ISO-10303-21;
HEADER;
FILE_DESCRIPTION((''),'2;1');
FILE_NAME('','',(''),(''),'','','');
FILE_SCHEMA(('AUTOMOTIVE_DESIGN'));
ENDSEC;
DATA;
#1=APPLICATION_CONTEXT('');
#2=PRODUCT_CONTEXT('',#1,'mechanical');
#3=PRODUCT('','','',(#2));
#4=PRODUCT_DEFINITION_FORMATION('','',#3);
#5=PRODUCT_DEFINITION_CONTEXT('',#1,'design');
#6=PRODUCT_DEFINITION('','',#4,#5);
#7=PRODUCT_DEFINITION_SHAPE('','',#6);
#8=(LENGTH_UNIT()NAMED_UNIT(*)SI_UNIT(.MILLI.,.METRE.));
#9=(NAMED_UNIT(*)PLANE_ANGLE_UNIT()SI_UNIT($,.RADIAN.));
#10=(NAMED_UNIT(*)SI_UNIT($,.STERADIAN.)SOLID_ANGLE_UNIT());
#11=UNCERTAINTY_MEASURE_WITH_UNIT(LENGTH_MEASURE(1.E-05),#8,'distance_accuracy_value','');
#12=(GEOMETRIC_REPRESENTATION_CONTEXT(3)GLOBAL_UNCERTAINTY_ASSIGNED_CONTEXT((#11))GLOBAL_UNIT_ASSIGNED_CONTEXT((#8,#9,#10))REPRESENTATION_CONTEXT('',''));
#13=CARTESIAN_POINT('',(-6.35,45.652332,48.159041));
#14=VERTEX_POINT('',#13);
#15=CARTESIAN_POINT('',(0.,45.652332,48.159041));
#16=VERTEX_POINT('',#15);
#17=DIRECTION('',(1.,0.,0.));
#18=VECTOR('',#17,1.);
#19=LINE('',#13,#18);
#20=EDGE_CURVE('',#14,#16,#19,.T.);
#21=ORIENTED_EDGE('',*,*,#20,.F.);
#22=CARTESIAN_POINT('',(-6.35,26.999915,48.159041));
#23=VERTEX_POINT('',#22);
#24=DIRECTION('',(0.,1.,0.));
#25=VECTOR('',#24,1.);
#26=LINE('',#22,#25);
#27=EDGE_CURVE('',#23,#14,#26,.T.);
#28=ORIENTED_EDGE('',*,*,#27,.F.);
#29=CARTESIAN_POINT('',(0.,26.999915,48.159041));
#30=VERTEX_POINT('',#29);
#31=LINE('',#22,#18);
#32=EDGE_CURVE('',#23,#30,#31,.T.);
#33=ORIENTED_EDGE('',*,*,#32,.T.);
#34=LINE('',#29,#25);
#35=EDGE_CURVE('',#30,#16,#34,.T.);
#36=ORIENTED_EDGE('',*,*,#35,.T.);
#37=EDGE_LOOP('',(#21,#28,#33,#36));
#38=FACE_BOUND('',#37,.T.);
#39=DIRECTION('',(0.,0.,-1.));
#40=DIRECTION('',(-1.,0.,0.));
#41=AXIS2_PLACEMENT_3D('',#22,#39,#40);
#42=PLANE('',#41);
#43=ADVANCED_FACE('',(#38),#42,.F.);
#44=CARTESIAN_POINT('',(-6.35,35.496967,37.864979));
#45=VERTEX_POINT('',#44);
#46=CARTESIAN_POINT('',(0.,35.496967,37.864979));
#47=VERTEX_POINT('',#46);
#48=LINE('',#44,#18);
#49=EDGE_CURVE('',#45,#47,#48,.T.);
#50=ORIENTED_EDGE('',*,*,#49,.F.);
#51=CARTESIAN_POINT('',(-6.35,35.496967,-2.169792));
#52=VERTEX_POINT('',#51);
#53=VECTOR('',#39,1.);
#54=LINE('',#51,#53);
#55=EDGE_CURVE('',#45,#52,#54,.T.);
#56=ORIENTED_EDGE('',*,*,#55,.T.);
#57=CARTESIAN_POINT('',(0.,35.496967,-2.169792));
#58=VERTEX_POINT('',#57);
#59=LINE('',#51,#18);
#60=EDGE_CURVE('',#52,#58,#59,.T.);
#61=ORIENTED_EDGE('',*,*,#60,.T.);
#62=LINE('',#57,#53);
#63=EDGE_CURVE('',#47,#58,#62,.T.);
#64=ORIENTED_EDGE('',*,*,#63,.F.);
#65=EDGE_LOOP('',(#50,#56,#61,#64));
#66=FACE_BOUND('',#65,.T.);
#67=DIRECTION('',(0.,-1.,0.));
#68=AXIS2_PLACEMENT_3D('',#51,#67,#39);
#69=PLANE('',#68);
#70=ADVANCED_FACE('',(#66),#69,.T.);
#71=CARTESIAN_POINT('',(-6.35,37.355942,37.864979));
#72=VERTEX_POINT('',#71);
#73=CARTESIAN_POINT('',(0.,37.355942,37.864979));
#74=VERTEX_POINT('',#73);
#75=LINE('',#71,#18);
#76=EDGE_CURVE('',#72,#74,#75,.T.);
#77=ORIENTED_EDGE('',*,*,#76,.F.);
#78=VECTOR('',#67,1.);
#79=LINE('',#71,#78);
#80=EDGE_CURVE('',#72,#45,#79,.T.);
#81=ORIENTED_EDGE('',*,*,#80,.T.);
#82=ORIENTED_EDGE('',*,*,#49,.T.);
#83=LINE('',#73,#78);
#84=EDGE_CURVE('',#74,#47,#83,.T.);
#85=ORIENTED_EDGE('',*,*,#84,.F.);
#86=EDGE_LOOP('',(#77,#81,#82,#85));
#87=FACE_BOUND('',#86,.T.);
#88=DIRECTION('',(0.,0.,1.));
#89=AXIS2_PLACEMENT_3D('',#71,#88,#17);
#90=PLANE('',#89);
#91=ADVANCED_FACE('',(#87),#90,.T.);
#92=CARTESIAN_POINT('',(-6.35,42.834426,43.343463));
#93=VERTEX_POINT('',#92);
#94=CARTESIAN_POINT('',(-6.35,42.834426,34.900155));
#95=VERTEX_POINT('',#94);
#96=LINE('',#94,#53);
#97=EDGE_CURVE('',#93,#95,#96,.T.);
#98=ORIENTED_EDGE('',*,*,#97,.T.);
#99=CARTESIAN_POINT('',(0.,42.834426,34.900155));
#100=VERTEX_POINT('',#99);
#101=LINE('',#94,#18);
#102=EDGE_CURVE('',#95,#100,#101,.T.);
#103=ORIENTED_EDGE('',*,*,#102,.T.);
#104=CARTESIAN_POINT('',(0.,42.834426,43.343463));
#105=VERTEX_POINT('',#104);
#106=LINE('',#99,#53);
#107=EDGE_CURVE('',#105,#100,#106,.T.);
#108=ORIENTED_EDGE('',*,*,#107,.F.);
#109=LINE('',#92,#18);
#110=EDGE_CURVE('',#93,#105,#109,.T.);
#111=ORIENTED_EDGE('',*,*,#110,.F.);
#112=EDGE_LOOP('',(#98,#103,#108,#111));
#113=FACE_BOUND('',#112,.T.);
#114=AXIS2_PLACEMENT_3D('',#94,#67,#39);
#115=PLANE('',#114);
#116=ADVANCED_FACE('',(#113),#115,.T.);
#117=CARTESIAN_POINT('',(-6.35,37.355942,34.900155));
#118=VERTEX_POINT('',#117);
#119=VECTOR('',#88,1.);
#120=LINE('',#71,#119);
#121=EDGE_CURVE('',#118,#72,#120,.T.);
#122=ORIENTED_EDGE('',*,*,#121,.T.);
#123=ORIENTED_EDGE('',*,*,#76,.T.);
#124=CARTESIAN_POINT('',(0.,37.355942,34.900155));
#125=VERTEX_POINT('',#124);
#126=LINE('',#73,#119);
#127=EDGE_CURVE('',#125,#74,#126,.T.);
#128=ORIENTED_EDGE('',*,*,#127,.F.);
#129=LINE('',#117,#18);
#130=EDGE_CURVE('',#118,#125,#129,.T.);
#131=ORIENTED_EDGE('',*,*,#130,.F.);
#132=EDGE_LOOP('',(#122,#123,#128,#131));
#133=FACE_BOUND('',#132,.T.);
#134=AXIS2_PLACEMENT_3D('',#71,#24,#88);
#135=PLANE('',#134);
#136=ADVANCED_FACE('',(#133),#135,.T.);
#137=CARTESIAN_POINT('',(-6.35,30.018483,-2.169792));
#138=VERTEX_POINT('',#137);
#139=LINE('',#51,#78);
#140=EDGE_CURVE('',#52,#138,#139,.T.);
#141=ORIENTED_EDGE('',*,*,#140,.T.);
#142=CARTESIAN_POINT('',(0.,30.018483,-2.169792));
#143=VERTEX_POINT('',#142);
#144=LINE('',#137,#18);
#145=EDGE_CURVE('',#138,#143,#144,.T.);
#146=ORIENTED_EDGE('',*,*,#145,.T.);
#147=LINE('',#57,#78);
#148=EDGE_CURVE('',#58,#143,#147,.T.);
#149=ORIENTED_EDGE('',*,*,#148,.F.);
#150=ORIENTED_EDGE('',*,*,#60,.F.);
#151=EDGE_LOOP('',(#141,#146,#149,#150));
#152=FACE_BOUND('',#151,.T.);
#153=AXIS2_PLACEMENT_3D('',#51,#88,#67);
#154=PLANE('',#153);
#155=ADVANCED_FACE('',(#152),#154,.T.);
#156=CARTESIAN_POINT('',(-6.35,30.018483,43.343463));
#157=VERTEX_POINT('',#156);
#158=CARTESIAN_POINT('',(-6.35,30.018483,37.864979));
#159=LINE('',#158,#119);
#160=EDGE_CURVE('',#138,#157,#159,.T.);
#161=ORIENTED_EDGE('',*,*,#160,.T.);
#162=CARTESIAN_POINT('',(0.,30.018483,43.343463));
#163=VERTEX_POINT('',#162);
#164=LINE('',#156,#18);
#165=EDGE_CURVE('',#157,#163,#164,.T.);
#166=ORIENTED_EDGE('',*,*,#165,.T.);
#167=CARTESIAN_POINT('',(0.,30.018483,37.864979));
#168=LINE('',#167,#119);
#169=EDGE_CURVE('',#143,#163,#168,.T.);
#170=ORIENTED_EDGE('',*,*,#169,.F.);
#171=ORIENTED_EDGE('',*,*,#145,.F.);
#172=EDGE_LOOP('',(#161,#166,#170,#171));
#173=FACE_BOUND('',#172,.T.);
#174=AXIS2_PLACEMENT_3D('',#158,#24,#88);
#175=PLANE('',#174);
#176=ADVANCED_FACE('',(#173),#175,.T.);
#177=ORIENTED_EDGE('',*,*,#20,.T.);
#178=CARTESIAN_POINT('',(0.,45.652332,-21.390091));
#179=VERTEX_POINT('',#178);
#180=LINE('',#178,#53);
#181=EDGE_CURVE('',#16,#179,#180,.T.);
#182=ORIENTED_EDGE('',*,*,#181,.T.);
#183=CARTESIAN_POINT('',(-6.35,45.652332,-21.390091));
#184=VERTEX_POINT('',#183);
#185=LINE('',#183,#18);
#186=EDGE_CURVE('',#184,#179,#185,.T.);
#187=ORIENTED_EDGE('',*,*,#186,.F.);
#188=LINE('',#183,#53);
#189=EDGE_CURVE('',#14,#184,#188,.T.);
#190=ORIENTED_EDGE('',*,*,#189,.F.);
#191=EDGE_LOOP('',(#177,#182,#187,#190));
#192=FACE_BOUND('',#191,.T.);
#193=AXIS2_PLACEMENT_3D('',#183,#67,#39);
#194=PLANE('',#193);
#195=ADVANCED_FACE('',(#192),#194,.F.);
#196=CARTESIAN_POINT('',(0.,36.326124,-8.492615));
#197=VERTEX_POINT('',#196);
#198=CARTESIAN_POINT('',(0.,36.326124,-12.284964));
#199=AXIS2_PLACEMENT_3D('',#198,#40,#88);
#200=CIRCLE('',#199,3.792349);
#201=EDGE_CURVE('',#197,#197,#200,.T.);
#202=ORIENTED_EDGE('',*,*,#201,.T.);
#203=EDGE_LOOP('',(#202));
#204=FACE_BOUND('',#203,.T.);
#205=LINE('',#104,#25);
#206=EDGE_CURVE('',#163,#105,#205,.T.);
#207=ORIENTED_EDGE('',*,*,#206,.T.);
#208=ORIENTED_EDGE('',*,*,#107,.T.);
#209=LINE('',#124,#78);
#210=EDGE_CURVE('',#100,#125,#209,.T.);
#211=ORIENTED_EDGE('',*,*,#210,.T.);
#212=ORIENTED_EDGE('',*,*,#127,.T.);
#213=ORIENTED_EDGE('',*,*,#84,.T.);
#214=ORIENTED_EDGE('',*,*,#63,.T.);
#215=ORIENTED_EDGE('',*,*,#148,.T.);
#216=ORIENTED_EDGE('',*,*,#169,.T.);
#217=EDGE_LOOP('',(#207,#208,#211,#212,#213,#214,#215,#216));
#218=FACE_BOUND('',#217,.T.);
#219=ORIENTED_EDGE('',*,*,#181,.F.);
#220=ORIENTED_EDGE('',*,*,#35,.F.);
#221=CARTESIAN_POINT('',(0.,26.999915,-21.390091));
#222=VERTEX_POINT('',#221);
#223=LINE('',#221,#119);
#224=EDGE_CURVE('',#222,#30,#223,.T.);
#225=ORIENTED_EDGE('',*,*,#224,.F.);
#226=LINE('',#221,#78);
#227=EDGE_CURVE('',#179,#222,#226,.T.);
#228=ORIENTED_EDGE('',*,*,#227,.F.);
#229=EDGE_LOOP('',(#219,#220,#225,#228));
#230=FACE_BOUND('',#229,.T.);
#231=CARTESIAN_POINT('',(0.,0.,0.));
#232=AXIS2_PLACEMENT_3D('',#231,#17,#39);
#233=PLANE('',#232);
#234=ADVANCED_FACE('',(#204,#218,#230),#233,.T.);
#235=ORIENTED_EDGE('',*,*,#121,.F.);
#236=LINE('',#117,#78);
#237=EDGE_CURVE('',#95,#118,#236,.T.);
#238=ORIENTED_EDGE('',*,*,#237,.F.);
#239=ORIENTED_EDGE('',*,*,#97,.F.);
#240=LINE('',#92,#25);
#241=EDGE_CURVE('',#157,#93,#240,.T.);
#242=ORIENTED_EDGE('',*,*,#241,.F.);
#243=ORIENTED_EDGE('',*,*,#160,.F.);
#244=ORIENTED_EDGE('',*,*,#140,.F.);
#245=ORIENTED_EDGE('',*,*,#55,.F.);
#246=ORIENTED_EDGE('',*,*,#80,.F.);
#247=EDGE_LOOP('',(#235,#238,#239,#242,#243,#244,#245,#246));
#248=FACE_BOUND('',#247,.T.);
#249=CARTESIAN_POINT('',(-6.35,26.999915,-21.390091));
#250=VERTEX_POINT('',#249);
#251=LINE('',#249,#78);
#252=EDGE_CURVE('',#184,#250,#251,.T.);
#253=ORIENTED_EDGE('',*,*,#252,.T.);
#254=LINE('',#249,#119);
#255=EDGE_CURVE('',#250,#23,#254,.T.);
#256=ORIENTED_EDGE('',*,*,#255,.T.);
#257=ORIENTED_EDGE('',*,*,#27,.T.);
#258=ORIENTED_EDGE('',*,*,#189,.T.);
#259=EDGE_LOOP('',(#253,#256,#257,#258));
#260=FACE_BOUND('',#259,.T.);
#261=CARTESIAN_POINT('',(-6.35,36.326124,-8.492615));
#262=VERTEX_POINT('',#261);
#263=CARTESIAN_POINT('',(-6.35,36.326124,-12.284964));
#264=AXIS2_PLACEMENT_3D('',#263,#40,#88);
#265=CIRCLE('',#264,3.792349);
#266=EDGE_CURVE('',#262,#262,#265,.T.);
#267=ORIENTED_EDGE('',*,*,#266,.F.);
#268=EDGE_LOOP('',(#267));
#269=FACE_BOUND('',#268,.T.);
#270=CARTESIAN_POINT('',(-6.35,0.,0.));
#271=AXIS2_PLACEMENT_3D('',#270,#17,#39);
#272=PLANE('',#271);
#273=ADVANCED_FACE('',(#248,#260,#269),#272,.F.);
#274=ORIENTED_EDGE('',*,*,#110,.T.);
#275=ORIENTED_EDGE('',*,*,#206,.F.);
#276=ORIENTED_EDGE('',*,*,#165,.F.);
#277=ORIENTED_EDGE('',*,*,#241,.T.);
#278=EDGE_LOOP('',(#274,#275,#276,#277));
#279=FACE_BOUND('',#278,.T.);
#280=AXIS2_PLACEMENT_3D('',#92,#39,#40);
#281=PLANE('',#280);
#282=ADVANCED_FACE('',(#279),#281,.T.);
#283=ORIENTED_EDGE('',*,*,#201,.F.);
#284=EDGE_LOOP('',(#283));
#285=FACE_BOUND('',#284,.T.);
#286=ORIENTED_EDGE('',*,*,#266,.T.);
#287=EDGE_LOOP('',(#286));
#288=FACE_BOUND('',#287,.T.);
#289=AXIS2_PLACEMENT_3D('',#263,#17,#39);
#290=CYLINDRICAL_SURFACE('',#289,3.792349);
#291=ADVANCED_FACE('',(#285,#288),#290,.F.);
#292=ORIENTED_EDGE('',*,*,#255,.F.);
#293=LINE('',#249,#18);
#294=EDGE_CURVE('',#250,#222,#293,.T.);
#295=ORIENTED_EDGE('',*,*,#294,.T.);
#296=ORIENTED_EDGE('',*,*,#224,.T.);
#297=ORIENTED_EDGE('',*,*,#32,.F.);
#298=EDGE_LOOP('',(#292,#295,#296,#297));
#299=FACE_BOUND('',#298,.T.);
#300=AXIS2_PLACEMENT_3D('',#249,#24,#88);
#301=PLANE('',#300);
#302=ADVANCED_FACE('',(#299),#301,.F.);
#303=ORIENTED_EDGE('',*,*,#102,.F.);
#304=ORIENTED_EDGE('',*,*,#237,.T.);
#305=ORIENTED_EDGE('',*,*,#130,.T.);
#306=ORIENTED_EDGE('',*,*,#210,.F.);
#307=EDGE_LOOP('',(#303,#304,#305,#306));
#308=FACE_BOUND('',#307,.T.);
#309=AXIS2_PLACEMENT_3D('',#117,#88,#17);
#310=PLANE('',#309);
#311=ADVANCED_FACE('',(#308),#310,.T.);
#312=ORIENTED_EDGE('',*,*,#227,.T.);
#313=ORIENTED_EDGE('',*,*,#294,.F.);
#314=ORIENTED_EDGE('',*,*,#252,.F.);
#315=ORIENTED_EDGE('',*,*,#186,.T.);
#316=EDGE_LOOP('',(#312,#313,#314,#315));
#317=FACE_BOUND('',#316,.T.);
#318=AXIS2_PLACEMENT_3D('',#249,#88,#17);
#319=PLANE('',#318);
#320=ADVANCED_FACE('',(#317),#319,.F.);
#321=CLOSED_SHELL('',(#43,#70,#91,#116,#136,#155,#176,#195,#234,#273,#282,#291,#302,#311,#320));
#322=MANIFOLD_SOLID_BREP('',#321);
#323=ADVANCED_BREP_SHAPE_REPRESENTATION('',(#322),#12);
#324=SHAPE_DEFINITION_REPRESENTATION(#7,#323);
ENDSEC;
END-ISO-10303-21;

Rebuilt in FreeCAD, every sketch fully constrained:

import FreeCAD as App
import Part
import Sketcher
Q = App.Units.Quantity

doc = App.newDocument("Part")
body = doc.addObject("PartDesign::Body", "Body")

# Sketch on YZ plane
sketch1 = body.newObject("Sketcher::SketchObject", "Sketch")
sketch1.AttachmentSupport = (doc.getObject("YZ_Plane"), [""])
sketch1.MapMode = "FlatFace"
sketch1.addGeometry([
    Part.LineSegment(App.Vector(45.652332, -21.390091, 0), App.Vector(26.999915, -21.390091, 0)),  # 0
    Part.LineSegment(App.Vector(26.999915, -21.390091, 0), App.Vector(26.999915, 48.159041, 0)),  # 1
    Part.LineSegment(App.Vector(26.999915, 48.159041, 0), App.Vector(45.652332, 48.159041, 0)),  # 2
    Part.LineSegment(App.Vector(45.652332, 48.159041, 0), App.Vector(45.652332, -21.390091, 0)),  # 3
    Part.Circle(App.Vector(36.326124, -12.284964, 0), App.Vector(0, 0, 1), 3.792349),  # 4
    Part.LineSegment(App.Vector(30.018483, 43.343463, 0), App.Vector(30.018483, -2.169792, 0)),  # 5
    Part.LineSegment(App.Vector(30.018483, -2.169792, 0), App.Vector(35.496967, -2.169792, 0)),  # 6
    Part.LineSegment(App.Vector(35.496967, -2.169792, 0), App.Vector(35.496967, 37.864979, 0)),  # 7
    Part.LineSegment(App.Vector(35.496967, 37.864979, 0), App.Vector(37.355942, 37.864979, 0)),  # 8
    Part.LineSegment(App.Vector(37.355942, 37.864979, 0), App.Vector(37.355942, 34.900155, 0)),  # 9
    Part.LineSegment(App.Vector(37.355942, 34.900155, 0), App.Vector(42.834426, 34.900155, 0)),  # 10
    Part.LineSegment(App.Vector(42.834426, 34.900155, 0), App.Vector(42.834426, 43.343463, 0)),  # 11
    Part.LineSegment(App.Vector(42.834426, 43.343463, 0), App.Vector(30.018483, 43.343463, 0)),  # 12
], False)
sketch1.addConstraint([
    Sketcher.Constraint("Coincident", 0, 2, 1, 1),
    Sketcher.Constraint("Coincident", 1, 2, 2, 1),
    Sketcher.Constraint("Coincident", 2, 2, 3, 1),
    Sketcher.Constraint("Coincident", 3, 2, 0, 1),
    Sketcher.Constraint("Coincident", 5, 2, 6, 1),
    Sketcher.Constraint("Coincident", 6, 2, 7, 1),
    Sketcher.Constraint("Coincident", 7, 2, 8, 1),
    Sketcher.Constraint("Coincident", 8, 2, 9, 1),
    Sketcher.Constraint("Coincident", 9, 2, 10, 1),
    Sketcher.Constraint("Coincident", 10, 2, 11, 1),
    Sketcher.Constraint("Coincident", 11, 2, 12, 1),
    Sketcher.Constraint("Coincident", 12, 2, 5, 1),
    Sketcher.Constraint("Horizontal", 0),
    Sketcher.Constraint("Vertical", 1),
    Sketcher.Constraint("Horizontal", 2),
    Sketcher.Constraint("Vertical", 3),
    Sketcher.Constraint("Vertical", 5),
    Sketcher.Constraint("Horizontal", 6),
    Sketcher.Constraint("Vertical", 7),
    Sketcher.Constraint("Horizontal", 8),
    Sketcher.Constraint("Vertical", 9),
    Sketcher.Constraint("Horizontal", 10),
    Sketcher.Constraint("Vertical", 11),
    Sketcher.Constraint("Horizontal", 12),
    Sketcher.Constraint("Equal", 6, 10),
    Sketcher.Constraint("Diameter", 4, Q("7.584698 mm")),
    Sketcher.Constraint("DistanceY", 7, 1, 7, 2, Q("40.034771 mm")),
    Sketcher.Constraint("DistanceY", 0, 2, 5, 2, Q("19.220299 mm")),
    Sketcher.Constraint("DistanceX", 0, 2, 0, 1, Q("18.652417 mm")),
    Sketcher.Constraint("DistanceX", 6, 1, 6, 2, Q("5.478484 mm")),
    Sketcher.Constraint("DistanceX", 8, 1, 8, 2, Q("1.858976 mm")),
    Sketcher.Constraint("DistanceY", 1, 1, 1, 2, Q("69.549132 mm")),
    Sketcher.Constraint("DistanceY", 5, 2, 5, 1, Q("45.513255 mm")),
    Sketcher.Constraint("DistanceY", 9, 2, 9, 1, Q("2.964824 mm")),
    Sketcher.Constraint("DistanceY", 0, 2, -1, 1, Q("21.390091 mm")),
    Sketcher.Constraint("DistanceX", 0, 2, 4, 3, Q("9.326209 mm")),
    Sketcher.Constraint("DistanceX", 5, 2, 4, 3, Q("6.30764 mm")),
    Sketcher.Constraint("DistanceY", 4, 3, 5, 2, Q("10.115172 mm")),
    Sketcher.Constraint("DistanceX", -1, 1, 4, 3, Q("36.326124 mm")),
])
pad1 = body.newObject("PartDesign::Pad", "Pad")
pad1.Profile = sketch1
pad1.Length = Q("0.25 in")
pad1.Reversed = True

doc.recompute()
